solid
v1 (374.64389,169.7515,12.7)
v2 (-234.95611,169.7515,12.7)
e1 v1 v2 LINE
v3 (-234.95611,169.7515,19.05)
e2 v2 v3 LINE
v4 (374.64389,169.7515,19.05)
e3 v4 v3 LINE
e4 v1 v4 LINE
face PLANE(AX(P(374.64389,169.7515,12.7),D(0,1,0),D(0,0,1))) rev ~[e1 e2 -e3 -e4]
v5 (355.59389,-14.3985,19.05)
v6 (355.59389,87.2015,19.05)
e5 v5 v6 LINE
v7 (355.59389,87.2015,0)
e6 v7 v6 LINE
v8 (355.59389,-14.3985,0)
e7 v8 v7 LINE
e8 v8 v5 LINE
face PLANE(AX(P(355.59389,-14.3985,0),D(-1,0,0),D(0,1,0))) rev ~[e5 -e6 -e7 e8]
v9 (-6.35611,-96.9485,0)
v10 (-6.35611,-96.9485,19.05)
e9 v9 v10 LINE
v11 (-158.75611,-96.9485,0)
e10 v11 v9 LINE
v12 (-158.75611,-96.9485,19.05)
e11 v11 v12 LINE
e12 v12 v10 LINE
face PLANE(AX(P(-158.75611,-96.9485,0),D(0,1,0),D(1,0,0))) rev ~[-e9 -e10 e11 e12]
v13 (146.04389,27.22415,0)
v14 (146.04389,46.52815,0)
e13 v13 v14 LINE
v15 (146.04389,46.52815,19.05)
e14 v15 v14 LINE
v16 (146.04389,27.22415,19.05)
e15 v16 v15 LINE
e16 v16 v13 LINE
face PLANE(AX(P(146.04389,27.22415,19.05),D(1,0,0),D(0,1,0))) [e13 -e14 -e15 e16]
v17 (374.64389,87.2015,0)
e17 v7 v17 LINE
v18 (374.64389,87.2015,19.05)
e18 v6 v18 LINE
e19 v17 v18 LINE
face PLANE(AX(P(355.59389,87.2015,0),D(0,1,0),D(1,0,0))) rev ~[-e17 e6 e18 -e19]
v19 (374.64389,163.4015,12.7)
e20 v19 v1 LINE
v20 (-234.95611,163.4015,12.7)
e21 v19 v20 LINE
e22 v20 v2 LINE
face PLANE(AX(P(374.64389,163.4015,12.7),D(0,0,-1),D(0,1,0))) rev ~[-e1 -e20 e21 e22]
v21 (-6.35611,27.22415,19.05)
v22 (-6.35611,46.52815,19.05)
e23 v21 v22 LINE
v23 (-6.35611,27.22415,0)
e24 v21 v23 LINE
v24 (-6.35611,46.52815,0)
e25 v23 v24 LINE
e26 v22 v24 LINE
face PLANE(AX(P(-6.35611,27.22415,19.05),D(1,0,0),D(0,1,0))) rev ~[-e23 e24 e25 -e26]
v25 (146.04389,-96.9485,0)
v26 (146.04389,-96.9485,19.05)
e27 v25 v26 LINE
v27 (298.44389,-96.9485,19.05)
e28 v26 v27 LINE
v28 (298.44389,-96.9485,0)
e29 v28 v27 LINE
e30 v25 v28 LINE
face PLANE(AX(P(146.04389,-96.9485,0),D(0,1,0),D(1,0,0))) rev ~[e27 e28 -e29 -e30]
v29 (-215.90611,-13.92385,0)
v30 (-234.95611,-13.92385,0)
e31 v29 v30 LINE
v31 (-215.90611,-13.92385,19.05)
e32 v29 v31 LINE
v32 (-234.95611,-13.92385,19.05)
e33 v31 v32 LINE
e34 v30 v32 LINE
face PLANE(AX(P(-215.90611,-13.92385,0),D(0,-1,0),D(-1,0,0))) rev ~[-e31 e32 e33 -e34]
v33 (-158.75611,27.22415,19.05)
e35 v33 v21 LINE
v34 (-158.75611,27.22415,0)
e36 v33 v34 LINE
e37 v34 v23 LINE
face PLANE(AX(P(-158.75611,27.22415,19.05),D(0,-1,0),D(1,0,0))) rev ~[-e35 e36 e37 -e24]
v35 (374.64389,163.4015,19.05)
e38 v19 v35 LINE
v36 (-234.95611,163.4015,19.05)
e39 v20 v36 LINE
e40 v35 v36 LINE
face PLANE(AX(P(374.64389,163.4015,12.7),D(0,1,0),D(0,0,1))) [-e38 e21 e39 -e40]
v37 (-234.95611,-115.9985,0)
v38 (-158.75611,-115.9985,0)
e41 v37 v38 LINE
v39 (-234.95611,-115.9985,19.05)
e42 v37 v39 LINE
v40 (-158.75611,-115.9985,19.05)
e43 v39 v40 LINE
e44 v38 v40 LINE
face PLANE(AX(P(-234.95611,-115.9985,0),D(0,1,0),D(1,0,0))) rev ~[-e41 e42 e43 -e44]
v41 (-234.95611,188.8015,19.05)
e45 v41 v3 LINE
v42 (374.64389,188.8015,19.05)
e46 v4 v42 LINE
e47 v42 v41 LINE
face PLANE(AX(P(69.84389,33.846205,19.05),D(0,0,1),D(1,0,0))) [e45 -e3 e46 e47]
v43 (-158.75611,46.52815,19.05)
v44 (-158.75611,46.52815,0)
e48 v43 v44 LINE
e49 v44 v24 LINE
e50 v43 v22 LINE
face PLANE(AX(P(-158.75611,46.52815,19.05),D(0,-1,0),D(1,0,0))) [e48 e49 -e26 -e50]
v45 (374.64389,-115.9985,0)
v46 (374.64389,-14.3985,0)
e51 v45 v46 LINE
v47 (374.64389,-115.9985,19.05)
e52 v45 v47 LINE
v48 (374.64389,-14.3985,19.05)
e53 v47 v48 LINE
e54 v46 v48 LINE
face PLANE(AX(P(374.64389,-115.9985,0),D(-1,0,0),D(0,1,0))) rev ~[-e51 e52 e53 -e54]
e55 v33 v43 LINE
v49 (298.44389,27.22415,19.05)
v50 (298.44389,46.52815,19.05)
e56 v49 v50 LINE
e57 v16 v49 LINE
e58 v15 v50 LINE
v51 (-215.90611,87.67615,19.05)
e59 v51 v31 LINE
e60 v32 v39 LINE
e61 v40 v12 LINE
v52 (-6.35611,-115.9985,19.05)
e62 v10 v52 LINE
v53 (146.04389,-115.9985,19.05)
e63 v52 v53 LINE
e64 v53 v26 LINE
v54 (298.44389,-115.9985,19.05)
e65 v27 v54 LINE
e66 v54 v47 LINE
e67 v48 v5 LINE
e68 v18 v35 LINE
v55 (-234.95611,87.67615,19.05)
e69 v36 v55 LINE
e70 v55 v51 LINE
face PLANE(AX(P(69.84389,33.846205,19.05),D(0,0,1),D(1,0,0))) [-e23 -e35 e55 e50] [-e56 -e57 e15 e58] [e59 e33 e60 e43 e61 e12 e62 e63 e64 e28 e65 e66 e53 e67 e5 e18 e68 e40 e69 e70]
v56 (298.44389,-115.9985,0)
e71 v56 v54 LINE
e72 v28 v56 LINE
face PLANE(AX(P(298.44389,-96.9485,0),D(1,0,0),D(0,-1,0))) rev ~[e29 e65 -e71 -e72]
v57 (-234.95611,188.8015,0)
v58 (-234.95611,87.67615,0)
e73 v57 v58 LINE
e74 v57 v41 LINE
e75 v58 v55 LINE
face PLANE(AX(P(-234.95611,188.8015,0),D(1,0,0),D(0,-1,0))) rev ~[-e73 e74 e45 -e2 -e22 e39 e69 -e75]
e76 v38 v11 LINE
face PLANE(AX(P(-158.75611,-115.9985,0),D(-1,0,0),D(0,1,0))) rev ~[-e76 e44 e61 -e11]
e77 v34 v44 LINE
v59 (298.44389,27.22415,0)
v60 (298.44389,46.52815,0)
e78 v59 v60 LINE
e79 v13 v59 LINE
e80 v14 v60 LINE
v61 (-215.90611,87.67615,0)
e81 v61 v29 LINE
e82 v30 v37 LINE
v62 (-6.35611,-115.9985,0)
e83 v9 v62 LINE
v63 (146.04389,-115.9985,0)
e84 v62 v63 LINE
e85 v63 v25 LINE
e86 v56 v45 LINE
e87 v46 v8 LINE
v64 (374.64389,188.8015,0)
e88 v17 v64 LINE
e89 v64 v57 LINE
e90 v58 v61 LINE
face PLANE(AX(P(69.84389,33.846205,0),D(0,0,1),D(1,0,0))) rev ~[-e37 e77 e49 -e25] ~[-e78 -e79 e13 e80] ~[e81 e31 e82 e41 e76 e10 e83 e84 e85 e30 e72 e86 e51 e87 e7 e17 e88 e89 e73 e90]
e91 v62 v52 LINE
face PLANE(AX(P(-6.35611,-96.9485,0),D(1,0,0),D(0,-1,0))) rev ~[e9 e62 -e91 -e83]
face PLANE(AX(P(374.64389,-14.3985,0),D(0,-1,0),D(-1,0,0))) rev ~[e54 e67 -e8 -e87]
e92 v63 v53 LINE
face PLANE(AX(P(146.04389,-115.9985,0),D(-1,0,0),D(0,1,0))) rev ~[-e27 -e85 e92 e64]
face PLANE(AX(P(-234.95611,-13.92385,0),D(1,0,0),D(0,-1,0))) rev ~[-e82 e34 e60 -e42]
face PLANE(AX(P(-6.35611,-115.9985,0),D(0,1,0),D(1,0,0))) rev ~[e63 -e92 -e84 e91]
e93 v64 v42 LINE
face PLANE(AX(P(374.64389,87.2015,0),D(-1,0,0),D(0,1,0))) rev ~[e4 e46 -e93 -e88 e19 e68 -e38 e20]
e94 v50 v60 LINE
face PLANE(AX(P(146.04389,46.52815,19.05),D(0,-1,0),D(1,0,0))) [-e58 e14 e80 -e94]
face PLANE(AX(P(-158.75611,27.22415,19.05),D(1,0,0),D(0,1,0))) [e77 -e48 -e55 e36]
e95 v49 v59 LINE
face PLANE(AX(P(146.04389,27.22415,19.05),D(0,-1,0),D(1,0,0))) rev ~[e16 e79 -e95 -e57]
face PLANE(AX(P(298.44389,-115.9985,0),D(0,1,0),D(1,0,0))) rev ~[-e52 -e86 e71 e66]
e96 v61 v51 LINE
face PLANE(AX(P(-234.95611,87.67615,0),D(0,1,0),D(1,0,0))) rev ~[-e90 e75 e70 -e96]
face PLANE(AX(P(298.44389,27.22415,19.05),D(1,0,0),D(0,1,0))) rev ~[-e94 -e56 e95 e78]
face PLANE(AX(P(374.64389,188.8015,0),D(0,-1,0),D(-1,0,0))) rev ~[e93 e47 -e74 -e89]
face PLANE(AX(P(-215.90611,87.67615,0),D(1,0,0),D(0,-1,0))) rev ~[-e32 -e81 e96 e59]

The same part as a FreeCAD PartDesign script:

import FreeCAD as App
import Part
import Sketcher
from FreeCAD import Vector
Q = App.Units.Quantity


def add_polygon(sketch, points):
    """Adds a closed chain of lines whose ends are joined by coincident constraints."""
    first, n = sketch.GeometryCount, len(points)
    for a, b in zip(points, points[1:] + points[:1]):
        sketch.addGeometry(Part.LineSegment(App.Vector(*a, 0), App.Vector(*b, 0)), False)
    for i in range(n):
        sketch.addConstraint(Sketcher.Constraint("Coincident", first + i, 2, first + (i + 1) % n, 1))

doc = App.newDocument("Part")
params = doc.addObject("Spreadsheet::Sheet", "Params")
for row, (alias, value) in enumerate([
    ("sketch1_width", "3 in"),
    ("sketch1_width2", "6 in"),
    ("sketch1_height", "4 in"),
    ("sketch1_width3", "0.75 in"),
    ("pad1_length", "0.75 in"),
    ("sketch2_width", "6 in"),
    ("sketch2_height", "0.76 in"),
    ("sketch3_width", "0.25 in"),
], start=1):
    params.set(f"A{row}", alias)
    params.set(f"B{row}", "=" + value)
    params.setAlias(f"B{row}", alias)

body = doc.addObject("PartDesign::Body", "Body")

# Sketch on XY plane
sketch1 = doc.addObject("Sketcher::SketchObject", "Sketch")
body.addObject(sketch1)
sketch1.AttachmentSupport = (doc.XY_Plane, [""])
sketch1.MapMode = "FlatFace"
add_polygon(sketch1, [(-235, 189), (-235, 88), (-216, 88), (-216, -14), (-235, -14), (-235, -116), (-159, -116), (-159, -97), (-6, -97), (-6, -116), (146, -116), (146, -97), (298, -97), (298, -116), (375, -116), (375, -14), (356, -14), (356, 87), (375, 87), (375, 189)])  # lines 0-19
sketch1.addConstraint([
    Sketcher.Constraint("Vertical", 0),
    Sketcher.Constraint("Horizontal", 1),
    Sketcher.Constraint("Vertical", 2),
    Sketcher.Constraint("Horizontal", 3),
    Sketcher.Constraint("Vertical", 4),
    Sketcher.Constraint("Horizontal", 5),
    Sketcher.Constraint("Vertical", 6),
    Sketcher.Constraint("Horizontal", 7),
    Sketcher.Constraint("Vertical", 8),
    Sketcher.Constraint("Horizontal", 9),
    Sketcher.Constraint("Vertical", 10),
    Sketcher.Constraint("Horizontal", 11),
    Sketcher.Constraint("Vertical", 12),
    Sketcher.Constraint("Horizontal", 13),
    Sketcher.Constraint("Vertical", 14),
    Sketcher.Constraint("Horizontal", 15),
    Sketcher.Constraint("Vertical", 16),
    Sketcher.Constraint("Horizontal", 17),
    Sketcher.Constraint("Vertical", 18),
    Sketcher.Constraint("Horizontal", 19),
    Sketcher.Constraint("Horizontal", 5, 2, 8, 2),
    Sketcher.Constraint("Horizontal", 7, 2, 10, 2),
    Sketcher.Constraint("Horizontal", 9, 2, 12, 2),
    Sketcher.Constraint("Vertical", 0, 2, 3, 2),
    Sketcher.Constraint("Vertical", 14, 2, 17, 2),
    Sketcher.Constraint("Equal", 7, 9),
    Sketcher.Constraint("Equal", 9, 11),
    Sketcher.Constraint("Equal", 5, 13),
    Sketcher.Constraint("Equal", 3, 15),
    Sketcher.Constraint("Equal", 17, 6),
    Sketcher.Constraint("Equal", 2, 14),
    Sketcher.Constraint("Equal", 14, 16),
    Sketcher.Constraint("Equal", 16, 18),
    Sketcher.Constraint("DistanceX", 5, 1, 5, 2, Q("3 in")),
    Sketcher.Constraint("DistanceX", 7, 1, 7, 2, Q("6 in")),
    Sketcher.Constraint("DistanceY", 2, 2, 2, 1, Q("4 in")),
    Sketcher.Constraint("DistanceX", 1, 1, 1, 2, Q("0.75 in")),
    Sketcher.Constraint("DistanceY", 0, 2, 0, 1, Q("101.12535 mm")),
    Sketcher.Constraint("DistanceY", 4, 2, -1, 1, Q("115.9985 mm")),
    Sketcher.Constraint("DistanceX", 0, 2, -1, 1, Q("234.95611 mm")),
])
sketch1.setExpression("Constraints[53]", "Params.sketch1_width")
sketch1.setExpression("Constraints[54]", "Params.sketch1_width2")
sketch1.setExpression("Constraints[55]", "Params.sketch1_height")
sketch1.setExpression("Constraints[56]", "Params.sketch1_width3")
pad1 = doc.addObject("PartDesign::Pad", "Pad")
body.addObject(pad1)
pad1.Profile = sketch1
pad1.setExpression("Length", "Params.pad1_length")

# Sketch on XY plane
sketch2 = doc.addObject("Sketcher::SketchObject", "Sketch001")
body.addObject(sketch2)
sketch2.AttachmentSupport = (doc.XY_Plane, [""])
sketch2.MapMode = "FlatFace"
sketch2.AttachmentOffset = App.Placement(Vector(0, 0, 0.75 * 25.4), App.Rotation())
add_polygon(sketch2, [(-159, 47), (-159, 27), (-6, 27), (-6, 47)])  # lines 0-3
add_polygon(sketch2, [(146, 47), (146, 27), (298, 27), (298, 47)])  # lines 4-7
sketch2.addConstraint([
    Sketcher.Constraint("Vertical", 0),
    Sketcher.Constraint("Horizontal", 1),
    Sketcher.Constraint("Vertical", 2),
    Sketcher.Constraint("Horizontal", 3),
    Sketcher.Constraint("Vertical", 4),
    Sketcher.Constraint("Horizontal", 5),
    Sketcher.Constraint("Vertical", 6),
    Sketcher.Constraint("Horizontal", 7),
    Sketcher.Constraint("Horizontal", 1, 2, 4, 2),
    Sketcher.Constraint("Horizontal", 3, 2, 6, 2),
    Sketcher.Constraint("Equal", 3, 5),
    Sketcher.Constraint("DistanceX", 1, 1, 1, 2, Q("6 in")),
    Sketcher.Constraint("DistanceX", 1, 2, 4, 2, Q("6 in")),
    Sketcher.Constraint("DistanceY", 0, 2, 0, 1, Q("0.76 in")),
    Sketcher.Constraint("DistanceX", 0, 2, -1, 1, Q("158.75611 mm")),
    Sketcher.Constraint("DistanceY", -1, 1, 0, 2, Q("27.22415 mm")),
])
sketch2.setExpression("Constraints[19]", "Params.sketch2_width")
sketch2.setExpression("Constraints[21]", "Params.sketch2_height")
pocket1 = doc.addObject("PartDesign::Pocket", "Pocket")
body.addObject(pocket1)
pocket1.Profile = sketch2
pocket1.Type = "ThroughAll"

# Sketch on YZ plane
sketch3 = doc.addObject("Sketcher::SketchObject", "Sketch002")
body.addObject(sketch3)
sketch3.AttachmentSupport = (doc.YZ_Plane, [""])
sketch3.MapMode = "FlatFace"
sketch3.AttachmentOffset = App.Placement(Vector(0, 0, 374.64389), App.Rotation())
add_polygon(sketch3, [(163, 19), (163, 13), (170, 13), (170, 19)])  # lines 0-3
sketch3.addConstraint([
    Sketcher.Constraint("Vertical", 0),
    Sketcher.Constraint("Horizontal", 1),
    Sketcher.Constraint("Vertical", 2),
    Sketcher.Constraint("Horizontal", 3),
    Sketcher.Constraint("Equal", 3, 0),
    Sketcher.Constraint("DistanceX", 1, 1, 1, 2, Q("0.25 in")),
    Sketcher.Constraint("DistanceY", -1, 1, 0, 2, Q("0.5 in")),
    Sketcher.Constraint("DistanceX", -1, 1, 0, 2, Q("163.4015 mm")),
])
sketch3.setExpression("Constraints[9]", "Params.sketch3_width")
pocket2 = doc.addObject("PartDesign::Pocket", "Pocket001")
body.addObject(pocket2)
pocket2.Profile = sketch3
pocket2.Type = "ThroughAll"

doc.recompute()
